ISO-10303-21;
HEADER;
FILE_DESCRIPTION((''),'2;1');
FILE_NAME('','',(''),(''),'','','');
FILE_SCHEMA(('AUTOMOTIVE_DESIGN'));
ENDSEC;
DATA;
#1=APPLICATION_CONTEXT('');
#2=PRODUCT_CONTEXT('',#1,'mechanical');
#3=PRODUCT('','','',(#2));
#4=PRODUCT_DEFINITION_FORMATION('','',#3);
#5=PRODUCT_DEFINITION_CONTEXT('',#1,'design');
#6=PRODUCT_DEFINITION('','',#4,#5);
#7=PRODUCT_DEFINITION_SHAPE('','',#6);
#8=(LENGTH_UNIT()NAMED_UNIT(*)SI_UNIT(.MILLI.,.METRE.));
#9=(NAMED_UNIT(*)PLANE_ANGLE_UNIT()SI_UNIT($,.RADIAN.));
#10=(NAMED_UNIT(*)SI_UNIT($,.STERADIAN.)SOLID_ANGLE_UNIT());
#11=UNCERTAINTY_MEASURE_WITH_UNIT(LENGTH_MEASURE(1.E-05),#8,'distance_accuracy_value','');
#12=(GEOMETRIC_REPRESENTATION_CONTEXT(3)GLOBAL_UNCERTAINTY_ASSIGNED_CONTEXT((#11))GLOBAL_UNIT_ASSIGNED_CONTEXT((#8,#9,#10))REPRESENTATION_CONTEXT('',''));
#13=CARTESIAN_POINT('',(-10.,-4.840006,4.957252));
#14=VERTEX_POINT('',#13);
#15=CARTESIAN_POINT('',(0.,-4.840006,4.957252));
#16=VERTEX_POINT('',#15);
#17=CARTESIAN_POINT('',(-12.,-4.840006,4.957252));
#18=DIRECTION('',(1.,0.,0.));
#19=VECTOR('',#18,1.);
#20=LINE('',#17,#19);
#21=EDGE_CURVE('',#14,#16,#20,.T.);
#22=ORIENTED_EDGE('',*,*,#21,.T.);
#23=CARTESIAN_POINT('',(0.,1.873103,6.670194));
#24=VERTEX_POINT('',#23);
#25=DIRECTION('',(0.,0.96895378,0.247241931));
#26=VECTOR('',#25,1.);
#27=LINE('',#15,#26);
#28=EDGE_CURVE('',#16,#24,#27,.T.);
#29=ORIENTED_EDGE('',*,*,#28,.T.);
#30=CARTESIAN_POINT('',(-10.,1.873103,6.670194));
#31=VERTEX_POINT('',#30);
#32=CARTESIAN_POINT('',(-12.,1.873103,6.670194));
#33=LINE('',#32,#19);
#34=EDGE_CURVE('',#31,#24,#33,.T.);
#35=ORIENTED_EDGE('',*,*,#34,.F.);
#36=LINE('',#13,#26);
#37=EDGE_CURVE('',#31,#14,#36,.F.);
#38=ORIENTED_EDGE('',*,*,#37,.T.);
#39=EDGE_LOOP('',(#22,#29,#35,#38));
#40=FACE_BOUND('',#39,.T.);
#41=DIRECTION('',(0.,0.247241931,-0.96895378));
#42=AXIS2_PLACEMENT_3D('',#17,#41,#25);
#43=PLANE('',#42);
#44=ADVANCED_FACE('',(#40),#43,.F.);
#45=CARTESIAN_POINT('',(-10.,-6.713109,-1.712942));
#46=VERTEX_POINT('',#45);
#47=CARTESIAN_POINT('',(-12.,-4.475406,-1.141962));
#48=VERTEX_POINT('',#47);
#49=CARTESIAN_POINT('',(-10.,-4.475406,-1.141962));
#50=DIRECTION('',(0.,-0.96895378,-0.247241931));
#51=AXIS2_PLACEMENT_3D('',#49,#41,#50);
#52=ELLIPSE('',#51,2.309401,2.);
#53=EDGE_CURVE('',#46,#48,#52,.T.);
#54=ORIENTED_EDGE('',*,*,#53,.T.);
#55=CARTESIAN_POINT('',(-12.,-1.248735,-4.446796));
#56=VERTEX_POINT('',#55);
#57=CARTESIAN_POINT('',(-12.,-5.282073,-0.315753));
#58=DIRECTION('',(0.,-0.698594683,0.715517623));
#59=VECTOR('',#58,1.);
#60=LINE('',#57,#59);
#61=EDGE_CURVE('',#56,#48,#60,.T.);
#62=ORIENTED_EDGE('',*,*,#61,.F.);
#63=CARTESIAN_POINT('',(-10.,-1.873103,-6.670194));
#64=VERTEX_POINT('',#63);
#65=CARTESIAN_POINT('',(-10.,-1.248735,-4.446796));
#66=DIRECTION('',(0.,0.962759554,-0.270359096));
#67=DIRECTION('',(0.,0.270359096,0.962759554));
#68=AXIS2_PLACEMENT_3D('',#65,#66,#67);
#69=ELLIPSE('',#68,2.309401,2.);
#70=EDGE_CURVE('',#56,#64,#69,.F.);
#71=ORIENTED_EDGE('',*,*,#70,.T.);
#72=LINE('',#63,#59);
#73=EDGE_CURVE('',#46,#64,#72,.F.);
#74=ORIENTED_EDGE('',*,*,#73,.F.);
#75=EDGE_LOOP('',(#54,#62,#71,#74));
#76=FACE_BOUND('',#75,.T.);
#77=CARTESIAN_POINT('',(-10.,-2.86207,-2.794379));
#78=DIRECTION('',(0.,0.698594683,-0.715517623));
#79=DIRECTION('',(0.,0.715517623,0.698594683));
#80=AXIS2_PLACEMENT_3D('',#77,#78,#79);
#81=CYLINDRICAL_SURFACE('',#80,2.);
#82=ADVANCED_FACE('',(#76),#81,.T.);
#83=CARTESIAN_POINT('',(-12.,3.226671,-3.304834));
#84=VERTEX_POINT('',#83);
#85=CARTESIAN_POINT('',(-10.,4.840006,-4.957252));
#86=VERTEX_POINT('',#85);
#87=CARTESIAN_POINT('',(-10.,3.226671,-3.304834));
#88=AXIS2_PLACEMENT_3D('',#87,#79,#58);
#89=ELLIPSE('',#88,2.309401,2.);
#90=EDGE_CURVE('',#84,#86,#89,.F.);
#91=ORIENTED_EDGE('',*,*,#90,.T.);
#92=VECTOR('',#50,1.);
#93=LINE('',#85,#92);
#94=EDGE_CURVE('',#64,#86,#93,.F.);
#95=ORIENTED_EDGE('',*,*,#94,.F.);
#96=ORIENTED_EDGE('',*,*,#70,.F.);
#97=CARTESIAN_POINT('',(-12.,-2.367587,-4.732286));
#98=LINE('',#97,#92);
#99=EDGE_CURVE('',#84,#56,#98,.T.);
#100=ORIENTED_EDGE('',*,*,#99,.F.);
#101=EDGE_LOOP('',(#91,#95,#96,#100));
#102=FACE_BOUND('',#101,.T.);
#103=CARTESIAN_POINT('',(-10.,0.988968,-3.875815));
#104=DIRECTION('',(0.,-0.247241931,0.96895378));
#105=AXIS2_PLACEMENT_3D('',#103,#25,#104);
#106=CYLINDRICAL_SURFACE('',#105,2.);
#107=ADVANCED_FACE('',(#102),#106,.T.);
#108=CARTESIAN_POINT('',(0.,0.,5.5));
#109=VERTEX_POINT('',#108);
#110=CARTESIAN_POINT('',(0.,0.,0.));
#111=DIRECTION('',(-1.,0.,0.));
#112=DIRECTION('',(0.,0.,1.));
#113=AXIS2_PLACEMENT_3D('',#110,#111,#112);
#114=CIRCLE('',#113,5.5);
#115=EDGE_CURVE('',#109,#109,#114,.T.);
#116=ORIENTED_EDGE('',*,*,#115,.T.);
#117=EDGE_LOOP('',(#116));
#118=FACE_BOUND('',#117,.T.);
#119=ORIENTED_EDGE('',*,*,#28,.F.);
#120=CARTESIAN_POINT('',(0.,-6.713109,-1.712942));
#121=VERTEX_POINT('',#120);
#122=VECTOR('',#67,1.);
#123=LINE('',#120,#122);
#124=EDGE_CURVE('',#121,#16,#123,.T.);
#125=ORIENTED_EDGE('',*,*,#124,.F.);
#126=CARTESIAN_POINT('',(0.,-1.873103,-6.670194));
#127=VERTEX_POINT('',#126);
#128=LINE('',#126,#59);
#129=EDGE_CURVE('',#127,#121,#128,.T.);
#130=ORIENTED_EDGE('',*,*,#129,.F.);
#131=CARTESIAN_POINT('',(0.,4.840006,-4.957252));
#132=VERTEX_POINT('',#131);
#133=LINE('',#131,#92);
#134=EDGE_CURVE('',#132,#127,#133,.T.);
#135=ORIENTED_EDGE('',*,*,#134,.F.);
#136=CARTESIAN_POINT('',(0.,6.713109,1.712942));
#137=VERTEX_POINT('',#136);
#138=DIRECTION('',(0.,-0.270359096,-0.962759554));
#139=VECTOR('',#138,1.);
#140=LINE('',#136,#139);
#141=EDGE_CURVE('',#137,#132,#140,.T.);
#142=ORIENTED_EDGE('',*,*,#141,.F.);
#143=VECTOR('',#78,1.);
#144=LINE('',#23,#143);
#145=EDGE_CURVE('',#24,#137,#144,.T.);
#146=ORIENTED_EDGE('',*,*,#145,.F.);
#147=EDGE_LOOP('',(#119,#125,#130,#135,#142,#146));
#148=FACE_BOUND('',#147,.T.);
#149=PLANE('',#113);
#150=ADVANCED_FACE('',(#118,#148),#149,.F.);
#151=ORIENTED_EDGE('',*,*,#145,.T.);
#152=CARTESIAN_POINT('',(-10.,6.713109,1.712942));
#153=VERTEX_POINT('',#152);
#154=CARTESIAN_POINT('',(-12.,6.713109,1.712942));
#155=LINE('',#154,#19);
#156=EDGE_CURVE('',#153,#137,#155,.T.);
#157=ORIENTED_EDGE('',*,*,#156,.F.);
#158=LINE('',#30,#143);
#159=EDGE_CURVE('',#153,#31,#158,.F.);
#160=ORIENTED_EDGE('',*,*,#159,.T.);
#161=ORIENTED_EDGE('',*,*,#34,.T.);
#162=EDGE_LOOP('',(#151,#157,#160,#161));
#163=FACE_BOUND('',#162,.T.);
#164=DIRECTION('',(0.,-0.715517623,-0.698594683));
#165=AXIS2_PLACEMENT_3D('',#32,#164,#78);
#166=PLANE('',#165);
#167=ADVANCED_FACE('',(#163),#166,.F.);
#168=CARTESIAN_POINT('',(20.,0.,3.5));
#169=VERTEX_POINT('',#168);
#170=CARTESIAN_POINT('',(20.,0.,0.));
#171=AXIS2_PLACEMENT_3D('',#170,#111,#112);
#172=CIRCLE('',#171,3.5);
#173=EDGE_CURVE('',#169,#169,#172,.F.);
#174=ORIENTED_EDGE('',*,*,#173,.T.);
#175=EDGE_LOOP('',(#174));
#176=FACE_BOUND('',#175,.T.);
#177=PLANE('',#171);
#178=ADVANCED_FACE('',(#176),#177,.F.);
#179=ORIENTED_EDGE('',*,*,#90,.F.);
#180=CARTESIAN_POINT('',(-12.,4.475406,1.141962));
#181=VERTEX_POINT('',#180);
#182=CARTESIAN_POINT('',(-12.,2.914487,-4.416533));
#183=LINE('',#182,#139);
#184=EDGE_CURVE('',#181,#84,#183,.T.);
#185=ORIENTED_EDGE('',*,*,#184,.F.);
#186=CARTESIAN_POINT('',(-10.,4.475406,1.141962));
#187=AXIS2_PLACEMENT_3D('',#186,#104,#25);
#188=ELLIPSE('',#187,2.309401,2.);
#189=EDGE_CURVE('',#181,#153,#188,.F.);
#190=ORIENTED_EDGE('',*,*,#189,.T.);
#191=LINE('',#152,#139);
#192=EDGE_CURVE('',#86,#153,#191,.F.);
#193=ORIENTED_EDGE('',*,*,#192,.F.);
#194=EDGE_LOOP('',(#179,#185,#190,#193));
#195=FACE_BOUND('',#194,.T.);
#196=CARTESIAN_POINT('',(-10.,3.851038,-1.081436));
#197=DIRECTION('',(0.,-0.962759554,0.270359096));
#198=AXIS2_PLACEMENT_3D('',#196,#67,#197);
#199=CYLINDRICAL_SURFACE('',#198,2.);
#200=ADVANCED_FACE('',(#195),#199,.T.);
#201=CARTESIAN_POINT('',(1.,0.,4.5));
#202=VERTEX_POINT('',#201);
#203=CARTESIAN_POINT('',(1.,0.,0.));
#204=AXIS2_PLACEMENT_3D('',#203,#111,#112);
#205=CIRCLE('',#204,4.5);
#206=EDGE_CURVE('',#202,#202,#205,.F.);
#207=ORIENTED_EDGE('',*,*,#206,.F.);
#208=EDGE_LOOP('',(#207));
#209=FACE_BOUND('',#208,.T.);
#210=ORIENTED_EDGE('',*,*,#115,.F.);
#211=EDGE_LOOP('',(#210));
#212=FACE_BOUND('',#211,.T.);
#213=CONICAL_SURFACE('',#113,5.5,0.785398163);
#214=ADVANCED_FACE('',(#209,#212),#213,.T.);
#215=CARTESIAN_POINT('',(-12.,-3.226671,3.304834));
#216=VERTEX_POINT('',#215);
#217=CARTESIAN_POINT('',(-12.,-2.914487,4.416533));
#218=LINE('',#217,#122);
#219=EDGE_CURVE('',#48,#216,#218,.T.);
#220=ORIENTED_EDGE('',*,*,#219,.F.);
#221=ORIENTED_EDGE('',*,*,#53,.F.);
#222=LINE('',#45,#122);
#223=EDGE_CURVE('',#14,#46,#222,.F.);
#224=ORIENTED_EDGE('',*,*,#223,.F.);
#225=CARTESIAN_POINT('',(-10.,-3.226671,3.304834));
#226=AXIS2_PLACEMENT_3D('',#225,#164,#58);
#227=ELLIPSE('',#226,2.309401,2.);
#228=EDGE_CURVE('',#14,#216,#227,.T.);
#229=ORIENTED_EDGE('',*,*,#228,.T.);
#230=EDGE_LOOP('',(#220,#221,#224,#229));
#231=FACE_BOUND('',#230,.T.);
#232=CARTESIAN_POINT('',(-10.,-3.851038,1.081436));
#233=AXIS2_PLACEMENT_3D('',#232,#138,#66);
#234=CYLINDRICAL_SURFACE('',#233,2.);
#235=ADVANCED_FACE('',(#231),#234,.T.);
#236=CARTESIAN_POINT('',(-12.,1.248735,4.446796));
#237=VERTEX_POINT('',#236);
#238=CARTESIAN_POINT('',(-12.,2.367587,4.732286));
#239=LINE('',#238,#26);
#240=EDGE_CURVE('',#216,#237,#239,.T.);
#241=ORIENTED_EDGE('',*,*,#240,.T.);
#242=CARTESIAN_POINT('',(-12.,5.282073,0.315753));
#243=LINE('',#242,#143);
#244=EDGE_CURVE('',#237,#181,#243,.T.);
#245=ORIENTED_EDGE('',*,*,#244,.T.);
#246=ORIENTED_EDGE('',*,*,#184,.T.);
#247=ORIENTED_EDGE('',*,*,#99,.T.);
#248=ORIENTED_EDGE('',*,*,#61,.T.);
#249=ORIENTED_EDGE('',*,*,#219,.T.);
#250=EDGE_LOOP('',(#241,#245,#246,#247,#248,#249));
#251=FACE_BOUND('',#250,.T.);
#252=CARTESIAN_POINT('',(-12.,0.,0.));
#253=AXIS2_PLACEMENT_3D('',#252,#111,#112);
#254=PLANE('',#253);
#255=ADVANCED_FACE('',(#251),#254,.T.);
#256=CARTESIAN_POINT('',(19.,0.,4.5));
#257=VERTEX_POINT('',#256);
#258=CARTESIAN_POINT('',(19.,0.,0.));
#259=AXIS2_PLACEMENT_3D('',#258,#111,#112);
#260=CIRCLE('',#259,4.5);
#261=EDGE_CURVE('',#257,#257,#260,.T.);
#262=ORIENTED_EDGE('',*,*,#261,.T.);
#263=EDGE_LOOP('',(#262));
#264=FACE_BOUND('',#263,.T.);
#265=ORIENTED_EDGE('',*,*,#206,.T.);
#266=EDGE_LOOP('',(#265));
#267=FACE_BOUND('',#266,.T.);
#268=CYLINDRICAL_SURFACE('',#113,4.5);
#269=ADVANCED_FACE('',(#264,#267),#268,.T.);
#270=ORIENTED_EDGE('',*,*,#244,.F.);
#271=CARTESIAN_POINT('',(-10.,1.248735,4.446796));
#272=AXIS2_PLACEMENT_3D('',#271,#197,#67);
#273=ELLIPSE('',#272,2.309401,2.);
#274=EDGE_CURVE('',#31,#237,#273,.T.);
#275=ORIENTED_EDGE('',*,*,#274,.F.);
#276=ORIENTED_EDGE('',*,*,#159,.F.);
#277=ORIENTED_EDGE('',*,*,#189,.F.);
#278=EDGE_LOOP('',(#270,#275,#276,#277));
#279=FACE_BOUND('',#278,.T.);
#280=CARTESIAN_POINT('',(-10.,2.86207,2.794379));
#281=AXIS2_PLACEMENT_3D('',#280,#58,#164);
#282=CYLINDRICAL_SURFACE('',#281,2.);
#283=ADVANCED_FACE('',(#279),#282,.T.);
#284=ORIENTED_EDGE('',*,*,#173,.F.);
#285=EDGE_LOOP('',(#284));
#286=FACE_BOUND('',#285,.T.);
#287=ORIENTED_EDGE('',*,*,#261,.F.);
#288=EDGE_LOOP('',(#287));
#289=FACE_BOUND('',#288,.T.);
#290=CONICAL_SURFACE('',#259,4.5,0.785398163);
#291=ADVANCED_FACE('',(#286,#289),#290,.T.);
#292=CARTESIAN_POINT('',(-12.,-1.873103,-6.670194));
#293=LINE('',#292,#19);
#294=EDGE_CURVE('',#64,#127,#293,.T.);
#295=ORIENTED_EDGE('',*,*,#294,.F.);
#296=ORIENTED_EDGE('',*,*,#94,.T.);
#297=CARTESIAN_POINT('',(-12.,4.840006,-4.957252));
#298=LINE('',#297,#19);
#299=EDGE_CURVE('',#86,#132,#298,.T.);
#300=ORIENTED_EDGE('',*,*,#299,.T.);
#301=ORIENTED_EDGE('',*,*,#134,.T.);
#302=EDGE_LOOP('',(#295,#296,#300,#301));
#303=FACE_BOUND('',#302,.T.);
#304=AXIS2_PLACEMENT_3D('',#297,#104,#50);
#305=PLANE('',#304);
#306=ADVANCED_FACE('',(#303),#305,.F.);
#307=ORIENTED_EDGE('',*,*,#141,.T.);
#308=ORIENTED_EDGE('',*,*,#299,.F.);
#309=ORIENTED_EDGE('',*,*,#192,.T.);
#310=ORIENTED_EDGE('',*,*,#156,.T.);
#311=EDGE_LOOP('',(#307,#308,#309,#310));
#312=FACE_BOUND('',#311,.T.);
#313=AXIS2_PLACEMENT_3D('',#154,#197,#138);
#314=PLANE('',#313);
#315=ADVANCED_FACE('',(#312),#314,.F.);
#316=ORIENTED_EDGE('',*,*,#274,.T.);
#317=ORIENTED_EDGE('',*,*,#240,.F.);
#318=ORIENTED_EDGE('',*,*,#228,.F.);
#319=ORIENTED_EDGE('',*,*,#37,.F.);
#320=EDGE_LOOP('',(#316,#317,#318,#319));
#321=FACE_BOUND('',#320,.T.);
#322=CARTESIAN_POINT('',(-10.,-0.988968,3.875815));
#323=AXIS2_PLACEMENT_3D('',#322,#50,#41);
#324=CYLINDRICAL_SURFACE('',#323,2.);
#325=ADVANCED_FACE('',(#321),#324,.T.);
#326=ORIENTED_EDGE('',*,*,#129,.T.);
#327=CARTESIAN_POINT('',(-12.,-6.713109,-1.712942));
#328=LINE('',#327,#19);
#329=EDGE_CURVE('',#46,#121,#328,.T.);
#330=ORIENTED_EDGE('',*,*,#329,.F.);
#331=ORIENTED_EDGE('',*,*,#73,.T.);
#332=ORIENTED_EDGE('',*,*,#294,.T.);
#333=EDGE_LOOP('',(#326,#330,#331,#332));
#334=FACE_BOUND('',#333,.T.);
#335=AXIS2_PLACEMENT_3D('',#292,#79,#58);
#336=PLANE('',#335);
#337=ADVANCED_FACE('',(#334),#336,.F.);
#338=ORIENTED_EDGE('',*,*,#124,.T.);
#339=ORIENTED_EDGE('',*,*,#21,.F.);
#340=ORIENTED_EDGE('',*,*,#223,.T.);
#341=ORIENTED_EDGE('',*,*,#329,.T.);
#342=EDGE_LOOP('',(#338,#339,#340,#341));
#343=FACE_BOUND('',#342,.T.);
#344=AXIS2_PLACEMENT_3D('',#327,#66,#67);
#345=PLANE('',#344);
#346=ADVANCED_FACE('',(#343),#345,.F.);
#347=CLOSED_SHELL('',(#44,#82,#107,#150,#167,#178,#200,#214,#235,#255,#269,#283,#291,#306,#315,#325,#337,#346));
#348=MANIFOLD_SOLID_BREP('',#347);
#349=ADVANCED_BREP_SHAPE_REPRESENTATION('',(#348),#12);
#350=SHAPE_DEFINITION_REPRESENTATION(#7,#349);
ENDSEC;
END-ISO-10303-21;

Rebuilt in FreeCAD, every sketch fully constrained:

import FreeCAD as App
import Part
import Sketcher

V = App.Vector
Q = App.Units.Quantity


def edges_at(feature, points):
    """Names of the edges that pass closest to the given points."""
    edges = feature.Shape.Edges
    near = lambda p: min(range(len(edges)), key=lambda i: edges[i].distToShape(Part.Vertex(*p))[0])
    return sorted({f"Edge{near(p) + 1}" for p in points})


def add_polygon(sketch, points):
    """Adds a closed chain of lines whose ends are joined by coincident constraints."""
    first, n = sketch.GeometryCount, len(points)
    for a, b in zip(points, points[1:] + points[:1]):
        sketch.addGeometry(Part.LineSegment(App.Vector(*a, 0), App.Vector(*b, 0)), False)
    for i in range(n):
        sketch.addConstraint(Sketcher.Constraint("Coincident", first + i, 2, first + (i + 1) % n, 1))

doc = App.newDocument("Part")
body = doc.addObject("PartDesign::Body", "Body")

sketch1 = body.newObject("Sketcher::SketchObject", "Sketch")
sketch1.AttachmentSupport = (doc.getObject("XY_Plane"), [""])
sketch1.MapMode = "FlatFace"
add_polygon(sketch1, [(0, 4.5), (0, 0), (20, 0), (20, 4.5)])
sketch1.addConstraint([
    Sketcher.Constraint("Vertical", 0),
    Sketcher.Constraint("Horizontal", 1),
    Sketcher.Constraint("Vertical", 2),
    Sketcher.Constraint("Horizontal", 3),
    Sketcher.Constraint("Coincident", 0, 2, -1, 1),
    Sketcher.Constraint("DistanceX", 1, 1, 1, 2, Q("20 mm")),
    Sketcher.Constraint("DistanceY", 0, 2, 0, 1, Q("4.5 mm")),
])
revolution = body.newObject("PartDesign::Revolution", "Revolution")
revolution.Profile = sketch1
revolution.ReferenceAxis = (sketch1, ["H_Axis"])
revolution.Angle = 360

sketch2 = body.newObject("Sketcher::SketchObject", "Sketch001")
sketch2.AttachmentSupport = (doc.getObject("YZ_Plane"), [""])
sketch2.MapMode = "FlatFace"
add_polygon(sketch2, [(7, 2), (5, -5), (-2, -7), (-7, -2), (-5, 5), (2, 7)])
sketch2.addConstraint([
    Sketcher.Constraint("Symmetric", 0, 2, 3, 2, -1, 1),
    Sketcher.Constraint("Symmetric", 1, 2, 4, 2, -1, 1),
    Sketcher.Constraint("Symmetric", 2, 2, 5, 2, -1, 1),
    Sketcher.Constraint("Equal", 0, 1),
    Sketcher.Constraint("Equal", 1, 2),
    Sketcher.Constraint("DistanceY", 0, 2, -1, 1, Q("4.957252 mm")),
    Sketcher.Constraint("DistanceX", 2, 2, -1, 1, Q("6.713109 mm")),
    Sketcher.Constraint("DistanceX", 1, 2, 0, 2, Q("6.713109 mm")),
    Sketcher.Constraint("DistanceY", 1, 2, 2, 2, Q("4.957252 mm")),
])
pad1 = body.newObject("PartDesign::Pad", "Pad")
pad1.Profile = sketch2
pad1.Length = 12
pad1.Reversed = True
doc.recompute()

fillet = body.newObject("PartDesign::Fillet", "Fillet")
fillet.Base = (pad1, edges_at(pad1, [
    (-12, 4.293, 4.192),
    (-12, 5.777, -1.622),
    (-12, 1.483, -5.814),
    (-12, -4.293, -4.192),
    (-12, -5.777, 1.622),
    (-12, -1.483, 5.814),
]))
fillet.Radius = 2
doc.recompute()

chamfer = body.newObject("PartDesign::Chamfer", "Chamfer")
chamfer.Base = (fillet, edges_at(fillet, [(20, 0, -4.5), (0, 0, -4.5)]))
chamfer.Size = 1

doc.recompute()
